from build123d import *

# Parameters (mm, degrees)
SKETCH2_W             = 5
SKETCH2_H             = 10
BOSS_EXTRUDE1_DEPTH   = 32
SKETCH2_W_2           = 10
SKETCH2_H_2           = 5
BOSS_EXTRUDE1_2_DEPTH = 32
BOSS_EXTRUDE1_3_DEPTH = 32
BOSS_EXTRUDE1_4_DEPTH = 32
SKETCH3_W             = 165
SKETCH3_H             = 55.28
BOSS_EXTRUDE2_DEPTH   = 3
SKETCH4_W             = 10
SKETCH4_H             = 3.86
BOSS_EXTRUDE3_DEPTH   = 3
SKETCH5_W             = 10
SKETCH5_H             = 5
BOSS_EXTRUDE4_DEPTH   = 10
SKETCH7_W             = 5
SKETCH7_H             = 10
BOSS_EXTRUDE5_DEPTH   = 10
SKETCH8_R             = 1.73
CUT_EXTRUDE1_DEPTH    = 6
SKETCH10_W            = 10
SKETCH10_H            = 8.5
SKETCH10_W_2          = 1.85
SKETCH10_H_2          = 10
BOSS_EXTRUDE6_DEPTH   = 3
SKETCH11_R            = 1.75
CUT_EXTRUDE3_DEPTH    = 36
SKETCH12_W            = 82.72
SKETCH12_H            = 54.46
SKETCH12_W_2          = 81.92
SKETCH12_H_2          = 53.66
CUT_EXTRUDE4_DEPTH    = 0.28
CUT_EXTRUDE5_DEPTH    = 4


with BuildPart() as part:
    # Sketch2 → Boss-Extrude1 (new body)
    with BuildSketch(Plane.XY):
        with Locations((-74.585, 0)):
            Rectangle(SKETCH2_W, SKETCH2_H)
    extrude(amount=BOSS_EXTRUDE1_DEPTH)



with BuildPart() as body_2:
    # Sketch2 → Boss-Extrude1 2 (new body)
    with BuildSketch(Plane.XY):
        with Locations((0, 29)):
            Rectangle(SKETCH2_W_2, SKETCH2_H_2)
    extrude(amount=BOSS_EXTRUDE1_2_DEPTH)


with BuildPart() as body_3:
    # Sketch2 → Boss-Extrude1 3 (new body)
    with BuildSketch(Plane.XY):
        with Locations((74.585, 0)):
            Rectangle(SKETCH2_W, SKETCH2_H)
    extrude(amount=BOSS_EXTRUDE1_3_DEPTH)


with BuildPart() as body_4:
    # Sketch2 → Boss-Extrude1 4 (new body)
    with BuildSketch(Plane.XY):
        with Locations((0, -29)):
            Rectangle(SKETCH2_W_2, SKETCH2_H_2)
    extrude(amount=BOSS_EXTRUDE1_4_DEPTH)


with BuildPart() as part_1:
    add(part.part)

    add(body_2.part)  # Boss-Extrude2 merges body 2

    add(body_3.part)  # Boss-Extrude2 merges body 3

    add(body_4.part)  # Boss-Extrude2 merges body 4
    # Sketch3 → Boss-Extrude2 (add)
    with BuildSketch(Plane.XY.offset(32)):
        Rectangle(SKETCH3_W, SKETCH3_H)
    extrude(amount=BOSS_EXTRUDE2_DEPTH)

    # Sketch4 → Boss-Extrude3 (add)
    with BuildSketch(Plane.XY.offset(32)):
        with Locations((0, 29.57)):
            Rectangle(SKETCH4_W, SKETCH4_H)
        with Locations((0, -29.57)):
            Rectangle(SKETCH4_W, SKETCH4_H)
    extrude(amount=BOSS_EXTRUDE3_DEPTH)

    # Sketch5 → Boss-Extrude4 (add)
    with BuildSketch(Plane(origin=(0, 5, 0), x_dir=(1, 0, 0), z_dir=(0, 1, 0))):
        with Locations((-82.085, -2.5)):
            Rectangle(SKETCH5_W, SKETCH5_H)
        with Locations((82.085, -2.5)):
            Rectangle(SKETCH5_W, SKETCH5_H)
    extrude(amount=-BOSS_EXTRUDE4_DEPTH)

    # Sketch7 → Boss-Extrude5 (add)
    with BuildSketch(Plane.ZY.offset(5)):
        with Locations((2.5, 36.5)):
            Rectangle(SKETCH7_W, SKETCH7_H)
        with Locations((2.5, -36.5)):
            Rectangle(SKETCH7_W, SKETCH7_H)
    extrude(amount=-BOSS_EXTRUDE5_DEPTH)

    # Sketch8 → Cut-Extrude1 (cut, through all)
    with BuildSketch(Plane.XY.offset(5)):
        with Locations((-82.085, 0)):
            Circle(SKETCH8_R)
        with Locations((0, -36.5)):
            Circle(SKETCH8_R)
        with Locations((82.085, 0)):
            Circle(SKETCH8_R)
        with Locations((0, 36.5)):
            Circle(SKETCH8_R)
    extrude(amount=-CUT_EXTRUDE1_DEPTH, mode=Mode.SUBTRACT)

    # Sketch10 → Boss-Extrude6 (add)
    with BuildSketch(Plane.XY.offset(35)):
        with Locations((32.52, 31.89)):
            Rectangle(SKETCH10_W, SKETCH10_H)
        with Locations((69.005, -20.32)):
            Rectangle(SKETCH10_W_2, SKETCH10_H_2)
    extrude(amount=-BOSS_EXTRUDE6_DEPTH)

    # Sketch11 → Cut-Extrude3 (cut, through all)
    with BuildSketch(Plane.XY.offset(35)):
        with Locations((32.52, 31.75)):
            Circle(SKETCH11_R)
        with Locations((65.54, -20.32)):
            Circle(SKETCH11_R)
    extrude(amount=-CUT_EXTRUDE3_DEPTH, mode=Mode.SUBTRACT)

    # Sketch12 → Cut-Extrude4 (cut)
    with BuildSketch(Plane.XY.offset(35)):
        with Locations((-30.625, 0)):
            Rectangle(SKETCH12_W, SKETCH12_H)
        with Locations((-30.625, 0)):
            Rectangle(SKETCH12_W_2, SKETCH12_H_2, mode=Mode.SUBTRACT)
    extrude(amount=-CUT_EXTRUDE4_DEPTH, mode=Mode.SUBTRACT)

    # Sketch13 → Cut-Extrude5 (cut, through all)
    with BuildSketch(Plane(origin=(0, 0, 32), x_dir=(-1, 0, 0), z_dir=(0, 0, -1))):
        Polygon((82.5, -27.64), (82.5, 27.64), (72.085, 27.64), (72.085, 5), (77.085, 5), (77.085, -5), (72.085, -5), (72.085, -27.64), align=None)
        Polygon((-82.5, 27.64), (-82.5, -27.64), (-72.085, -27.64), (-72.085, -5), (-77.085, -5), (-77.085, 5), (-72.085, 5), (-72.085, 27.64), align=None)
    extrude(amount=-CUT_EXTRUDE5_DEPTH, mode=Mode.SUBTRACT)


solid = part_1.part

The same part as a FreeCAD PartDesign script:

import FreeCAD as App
import Part
import Sketcher

V = App.Vector
Q = App.Units.Quantity


def add_polygon(sketch, points):
    """Adds a closed chain of lines whose ends are joined by coincident constraints."""
    first, n = sketch.GeometryCount, len(points)
    for a, b in zip(points, points[1:] + points[:1]):
        sketch.addGeometry(Part.LineSegment(App.Vector(*a, 0), App.Vector(*b, 0)), False)
    for i in range(n):
        sketch.addConstraint(Sketcher.Constraint("Coincident", first + i, 2, first + (i + 1) % n, 1))

doc = App.newDocument("Part")
body = doc.addObject("PartDesign::Body", "Body")

# Sketch on XY plane
sketch1 = body.newObject("Sketcher::SketchObject", "Sketch")
sketch1.AttachmentSupport = (doc.getObject("XY_Plane"), [""])
sketch1.MapMode = "FlatFace"
add_polygon(sketch1, [(-77, 5), (-77, -5), (-72, -5), (-72, 5)])  # lines 0-3
sketch1.addConstraint(Sketcher.Constraint("Vertical", 0))
sketch1.addConstraint(Sketcher.Constraint("Horizontal", 1))
sketch1.addConstraint(Sketcher.Constraint("Vertical", 2))
sketch1.addConstraint(Sketcher.Constraint("Horizontal", 3))
sketch1.addConstraint(Sketcher.Constraint("DistanceX", 1, 1, 1, 2, Q("5 mm")))
sketch1.addConstraint(Sketcher.Constraint("DistanceY", 0, 2, 0, 1, Q("10 mm")))
sketch1.addConstraint(Sketcher.Constraint("DistanceY", 0, 2, -1, 1, Q("5 mm")))
sketch1.addConstraint(Sketcher.Constraint("DistanceX", 0, 2, -1, 1, Q("77.085 mm")))
pad1 = body.newObject("PartDesign::Pad", "Pad")
pad1.Profile = sketch1
pad1.Length = 32
body2 = doc.addObject("PartDesign::Body", "Body001")

# Sketch on XY plane
sketch2 = body2.newObject("Sketcher::SketchObject", "Sketch001")
sketch2.AttachmentSupport = (doc.getObject("XY_Plane001"), [""])
sketch2.MapMode = "FlatFace"
add_polygon(sketch2, [(-5, 32), (-5, 26), (5, 26), (5, 32)])  # lines 0-3
sketch2.addConstraint(Sketcher.Constraint("Vertical", 0))
sketch2.addConstraint(Sketcher.Constraint("Horizontal", 1))
sketch2.addConstraint(Sketcher.Constraint("Vertical", 2))
sketch2.addConstraint(Sketcher.Constraint("Horizontal", 3))
sketch2.addConstraint(Sketcher.Constraint("DistanceX", 1, 1, 1, 2, Q("10 mm")))
sketch2.addConstraint(Sketcher.Constraint("DistanceY", 0, 2, 0, 1, Q("5 mm")))
sketch2.addConstraint(Sketcher.Constraint("DistanceX", 0, 2, -1, 1, Q("5 mm")))
sketch2.addConstraint(Sketcher.Constraint("DistanceY", -1, 1, 0, 2, Q("26.5 mm")))
pad2 = body2.newObject("PartDesign::Pad", "Pad001")
pad2.Profile = sketch2
pad2.Length = 32
body3 = doc.addObject("PartDesign::Body", "Body002")

# Sketch on XY plane
sketch3 = body3.newObject("Sketcher::SketchObject", "Sketch002")
sketch3.AttachmentSupport = (doc.getObject("XY_Plane002"), [""])
sketch3.MapMode = "FlatFace"
add_polygon(sketch3, [(72, 5), (72, -5), (77, -5), (77, 5)])  # lines 0-3
sketch3.addConstraint(Sketcher.Constraint("Vertical", 0))
sketch3.addConstraint(Sketcher.Constraint("Horizontal", 1))
sketch3.addConstraint(Sketcher.Constraint("Vertical", 2))
sketch3.addConstraint(Sketcher.Constraint("Horizontal", 3))
sketch3.addConstraint(Sketcher.Constraint("DistanceX", 1, 1, 1, 2, Q("5 mm")))
sketch3.addConstraint(Sketcher.Constraint("DistanceY", 0, 2, 0, 1, Q("10 mm")))
sketch3.addConstraint(Sketcher.Constraint("DistanceY", 0, 2, -1, 1, Q("5 mm")))
sketch3.addConstraint(Sketcher.Constraint("DistanceX", -1, 1, 0, 2, Q("72.085 mm")))
pad3 = body3.newObject("PartDesign::Pad", "Pad002")
pad3.Profile = sketch3
pad3.Length = 32
body4 = doc.addObject("PartDesign::Body", "Body003")

# Sketch on XY plane
sketch4 = body4.newObject("Sketcher::SketchObject", "Sketch003")
sketch4.AttachmentSupport = (doc.getObject("XY_Plane003"), [""])
sketch4.MapMode = "FlatFace"
add_polygon(sketch4, [(-5, -26), (-5, -32), (5, -32), (5, -26)])  # lines 0-3
sketch4.addConstraint(Sketcher.Constraint("Vertical", 0))
sketch4.addConstraint(Sketcher.Constraint("Horizontal", 1))
sketch4.addConstraint(Sketcher.Constraint("Vertical", 2))
sketch4.addConstraint(Sketcher.Constraint("Horizontal", 3))
sketch4.addConstraint(Sketcher.Constraint("DistanceX", 1, 1, 1, 2, Q("10 mm")))
sketch4.addConstraint(Sketcher.Constraint("DistanceY", 0, 2, 0, 1, Q("5 mm")))
sketch4.addConstraint(Sketcher.Constraint("DistanceX", 0, 2, -1, 1, Q("5 mm")))
sketch4.addConstraint(Sketcher.Constraint("DistanceY", 0, 2, -1, 1, Q("31.5 mm")))
pad4 = body4.newObject("PartDesign::Pad", "Pad003")
pad4.Profile = sketch4
pad4.Length = 32
body.AllowCompound = True
doc.recompute()

boolean = body.newObject("PartDesign::Boolean", "Boolean")
boolean.Type = "Fuse"
boolean.addObjects([body2])
doc.recompute()

boolean2 = body.newObject("PartDesign::Boolean", "Boolean001")
boolean2.Type = "Fuse"
boolean2.addObjects([body3])
doc.recompute()

boolean3 = body.newObject("PartDesign::Boolean", "Boolean002")
boolean3.Type = "Fuse"
boolean3.addObjects([body4])

# Sketch on XY plane
sketch5 = body.newObject("Sketcher::SketchObject", "Sketch004")
sketch5.AttachmentSupport = (doc.getObject("XY_Plane"), [""])
sketch5.MapMode = "FlatFace"
sketch5.AttachmentOffset = App.Placement(V(0, 0, 32), App.Rotation())
add_polygon(sketch5, [(-82, 28), (-82, -28), (82, -28), (82, 28)])  # lines 0-3
sketch5.addConstraint(Sketcher.Constraint("Vertical", 0))
sketch5.addConstraint(Sketcher.Constraint("Horizontal", 1))
sketch5.addConstraint(Sketcher.Constraint("Vertical", 2))
sketch5.addConstraint(Sketcher.Constraint("Horizontal", 3))
sketch5.addConstraint(Sketcher.Constraint("Symmetric", 0, 2, 2, 2, -1, 1))
sketch5.addConstraint(Sketcher.Constraint("DistanceX", 1, 1, 1, 2, Q("165 mm")))
sketch5.addConstraint(Sketcher.Constraint("DistanceY", 0, 2, 0, 1, Q("55.28 mm")))
pad5 = body.newObject("PartDesign::Pad", "Pad004")
pad5.Profile = sketch5
pad5.Length = 3

# Sketch on XY plane
sketch6 = body.newObject("Sketcher::SketchObject", "Sketch005")
sketch6.AttachmentSupport = (doc.getObject("XY_Plane"), [""])
sketch6.MapMode = "FlatFace"
sketch6.AttachmentOffset = App.Placement(V(0, 0, 32), App.Rotation())
add_polygon(sketch6, [(-5, 31.5), (-5, 27.6), (5, 27.6), (5, 31.5)])  # lines 0-3
add_polygon(sketch6, [(-5, -27.6), (-5, -31.5), (5, -31.5), (5, -27.6)])  # lines 4-7
sketch6.addConstraint(Sketcher.Constraint("Vertical", 0))
sketch6.addConstraint(Sketcher.Constraint("Horizontal", 1))
sketch6.addConstraint(Sketcher.Constraint("Vertical", 2))
sketch6.addConstraint(Sketcher.Constraint("Horizontal", 3))
sketch6.addConstraint(Sketcher.Constraint("Vertical", 4))
sketch6.addConstraint(Sketcher.Constraint("Horizontal", 5))
sketch6.addConstraint(Sketcher.Constraint("Vertical", 6))
sketch6.addConstraint(Sketcher.Constraint("Horizontal", 7))
sketch6.addConstraint(Sketcher.Constraint("Symmetric", 2, 2, 4, 2, -1, 1))
sketch6.addConstraint(Sketcher.Constraint("Symmetric", 0, 2, 6, 2, -1, 1))
sketch6.addConstraint(Sketcher.Constraint("Vertical", 3, 2, 4, 2))
sketch6.addConstraint(Sketcher.Constraint("DistanceX", 1, 1, 1, 2, Q("10 mm")))
sketch6.addConstraint(Sketcher.Constraint("DistanceY", 4, 2, 3, 2, Q("63 mm")))
sketch6.addConstraint(Sketcher.Constraint("DistanceY", 0, 2, 0, 1, Q("3.86 mm")))
pad6 = body.newObject("PartDesign::Pad", "Pad005")
pad6.Profile = sketch6
pad6.Length = 3

# Sketch on XZ plane
sketch7 = body.newObject("Sketcher::SketchObject", "Sketch006")
sketch7.AttachmentSupport = (doc.getObject("XZ_Plane"), [""])
sketch7.MapMode = "FlatFace"
sketch7.AttachmentOffset = App.Placement(V(0, 0, -5), App.Rotation())
add_polygon(sketch7, [(-87, 0), (-87, 5), (-77, 5), (-77, 0)])  # lines 0-3
add_polygon(sketch7, [(77, 0), (77, 5), (87, 5), (87, 0)])  # lines 4-7
sketch7.addConstraint(Sketcher.Constraint("Vertical", 0))
sketch7.addConstraint(Sketcher.Constraint("Horizontal", 1))
sketch7.addConstraint(Sketcher.Constraint("Vertical", 2))
sketch7.addConstraint(Sketcher.Constraint("Horizontal", 3))
sketch7.addConstraint(Sketcher.Constraint("Vertical", 4))
sketch7.addConstraint(Sketcher.Constraint("Horizontal", 5))
sketch7.addConstraint(Sketcher.Constraint("Vertical", 6))
sketch7.addConstraint(Sketcher.Constraint("Horizontal", 7))
sketch7.addConstraint(Sketcher.Constraint("Symmetric", 3, 2, 6, 2, -1, 1))
sketch7.addConstraint(Sketcher.Constraint("Symmetric", 1, 2, 4, 2, -2))
sketch7.addConstraint(Sketcher.Constraint("PointOnObject", 2, 2, -1))
sketch7.addConstraint(Sketcher.Constraint("DistanceX", 1, 1, 1, 2, Q("10 mm")))
sketch7.addConstraint(Sketcher.Constraint("DistanceY", 0, 1, 0, 2, Q("5 mm")))
sketch7.addConstraint(Sketcher.Constraint("DistanceX", 1, 2, 4, 2, Q("154.17 mm")))
pad7 = body.newObject("PartDesign::Pad", "Pad006")
pad7.Profile = sketch7
pad7.Length = 10

# Sketch on YZ plane
sketch8 = body.newObject("Sketcher::SketchObject", "Sketch007")
sketch8.AttachmentSupport = (doc.getObject("YZ_Plane"), [""])
sketch8.MapMode = "FlatFace"
sketch8.AttachmentOffset = App.Placement(V(0, 0, -5), App.Rotation())
add_polygon(sketch8, [(42, 0), (32, 0), (32, 5), (42, 5)])  # lines 0-3
add_polygon(sketch8, [(-32, 0), (-42, 0), (-42, 5), (-32, 5)])  # lines 4-7
sketch8.addConstraint(Sketcher.Constraint("Horizontal", 0))
sketch8.addConstraint(Sketcher.Constraint("Vertical", 1))
sketch8.addConstraint(Sketcher.Constraint("Horizontal", 2))
sketch8.addConstraint(Sketcher.Constraint("Vertical", 3))
sketch8.addConstraint(Sketcher.Constraint("Horizontal", 4))
sketch8.addConstraint(Sketcher.Constraint("Vertical", 5))
sketch8.addConstraint(Sketcher.Constraint("Horizontal", 6))
sketch8.addConstraint(Sketcher.Constraint("Vertical", 7))
sketch8.addConstraint(Sketcher.Constraint("Symmetric", 3, 2, 4, 2, -1, 1))
sketch8.addConstraint(Sketcher.Constraint("Symmetric", 1, 2, 6, 2, -2))
sketch8.addConstraint(Sketcher.Constraint("PointOnObject", 0, 2, -1))
sketch8.addConstraint(Sketcher.Constraint("DistanceX", 0, 2, 0, 1, Q("10 mm")))
sketch8.addConstraint(Sketcher.Constraint("DistanceY", 1, 1, 1, 2, Q("5 mm")))
sketch8.addConstraint(Sketcher.Constraint("DistanceX", 4, 2, 0, 2, Q("73 mm")))
pad8 = body.newObject("PartDesign::Pad", "Pad007")
pad8.Profile = sketch8
pad8.Length = 10

# Sketch on XY plane
sketch9 = body.newObject("Sketcher::SketchObject", "Sketch008")
sketch9.AttachmentSupport = (doc.getObject("XY_Plane"), [""])
sketch9.MapMode = "FlatFace"
sketch9.AttachmentOffset = App.Placement(V(0, 0, 5), App.Rotation())
sketch9.addGeometry(Part.Circle(V(-82.1, 0, 0), V(0, 0, 1), 1.7), False)
sketch9.addGeometry(Part.Circle(V(0, -36.5, 0), V(0, 0, 1), 1.7), False)
sketch9.addGeometry(Part.Circle(V(82.1, 0, 0), V(0, 0, 1), 1.7), False)
sketch9.addGeometry(Part.Circle(V(0, 36.5, 0), V(0, 0, 1), 1.7), False)
sketch9.addConstraint(Sketcher.Constraint("Equal", 0, 1))
sketch9.addConstraint(Sketcher.Constraint("Equal", 1, 2))
sketch9.addConstraint(Sketcher.Constraint("Equal", 2, 3))
sketch9.addConstraint(Sketcher.Constraint("Symmetric", 0, 3, 2, 3, -1, 1))
sketch9.addConstraint(Sketcher.Constraint("Symmetric", 1, 3, 3, 3, -1, 1))
sketch9.addConstraint(Sketcher.Constraint("PointOnObject", 0, 3, -1))
sketch9.addConstraint(Sketcher.Constraint("PointOnObject", 1, 3, -2))
sketch9.addConstraint(Sketcher.Constraint("Diameter", 0, Q("3.46 mm")))
sketch9.addConstraint(Sketcher.Constraint("DistanceY", 1, 3, 3, 3, Q("73 mm")))
sketch9.addConstraint(Sketcher.Constraint("DistanceX", 0, 3, 2, 3, Q("164.17 mm")))
pocket1 = body.newObject("PartDesign::Pocket", "Pocket")
pocket1.Profile = sketch9
pocket1.Type = "ThroughAll"

# Sketch on XY plane
sketch10 = body.newObject("Sketcher::SketchObject", "Sketch009")
sketch10.AttachmentSupport = (doc.getObject("XY_Plane"), [""])
sketch10.MapMode = "FlatFace"
sketch10.AttachmentOffset = App.Placement(V(0, 0, 35), App.Rotation())
add_polygon(sketch10, [(27.5, 36.1), (27.5, 27.6), (37.5, 27.6), (37.5, 36.1)])  # lines 0-3
add_polygon(sketch10, [(68.1, -15.3), (68.1, -25.3), (69.9, -25.3), (69.9, -15.3)])  # lines 4-7
sketch10.addConstraint(Sketcher.Constraint("Vertical", 0))
sketch10.addConstraint(Sketcher.Constraint("Horizontal", 1))
sketch10.addConstraint(Sketcher.Constraint("Vertical", 2))
sketch10.addConstraint(Sketcher.Constraint("Horizontal", 3))
sketch10.addConstraint(Sketcher.Constraint("Vertical", 4))
sketch10.addConstraint(Sketcher.Constraint("Horizontal", 5))
sketch10.addConstraint(Sketcher.Constraint("Vertical", 6))
sketch10.addConstraint(Sketcher.Constraint("Horizontal", 7))
sketch10.addConstraint(Sketcher.Constraint("Equal", 3, 4))
sketch10.addConstraint(Sketcher.Constraint("DistanceX", 1, 1, 1, 2, Q("10 mm")))
sketch10.addConstraint(Sketcher.Constraint("DistanceY", 0, 2, 0, 1, Q("8.5 mm")))
sketch10.addConstraint(Sketcher.Constraint("DistanceX", 5, 1, 5, 2, Q("1.85 mm")))
sketch10.addConstraint(Sketcher.Constraint("DistanceX", -1, 1, 0, 2, Q("27.52 mm")))
sketch10.addConstraint(Sketcher.Constraint("DistanceY", -1, 1, 0, 2, Q("27.64 mm")))
sketch10.addConstraint(Sketcher.Constraint("DistanceX", -1, 1, 4, 2, Q("68.08 mm")))
sketch10.addConstraint(Sketcher.Constraint("DistanceY", 4, 2, -1, 1, Q("25.32 mm")))
pad9 = body.newObject("PartDesign::Pad", "Pad008")
pad9.Profile = sketch10
pad9.Length = 3
pad9.Reversed = True

# Sketch on XY plane
sketch11 = body.newObject("Sketcher::SketchObject", "Sketch010")
sketch11.AttachmentSupport = (doc.getObject("XY_Plane"), [""])
sketch11.MapMode = "FlatFace"
sketch11.AttachmentOffset = App.Placement(V(0, 0, 35), App.Rotation())
sketch11.addGeometry(Part.Circle(V(32.5, 31.8, 0), V(0, 0, 1), 1.8), False)
sketch11.addGeometry(Part.Circle(V(65.5, -20.3, 0), V(0, 0, 1), 1.8), False)
sketch11.addConstraint(Sketcher.Constraint("Equal", 0, 1))
sketch11.addConstraint(Sketcher.Constraint("Diameter", 0, Q("3.5 mm")))
sketch11.addConstraint(Sketcher.Constraint("DistanceX", -1, 1, 0, 3, Q("32.52 mm")))
sketch11.addConstraint(Sketcher.Constraint("DistanceY", -1, 1, 0, 3, Q("31.75 mm")))
sketch11.addConstraint(Sketcher.Constraint("DistanceX", -1, 1, 1, 3, Q("65.54 mm")))
sketch11.addConstraint(Sketcher.Constraint("DistanceY", 1, 3, -1, 1, Q("20.32 mm")))
pocket2 = body.newObject("PartDesign::Pocket", "Pocket001")
pocket2.Profile = sketch11
pocket2.Type = "ThroughAll"

# Sketch on XY plane
sketch12 = body.newObject("Sketcher::SketchObject", "Sketch011")
sketch12.AttachmentSupport = (doc.getObject("XY_Plane"), [""])
sketch12.MapMode = "FlatFace"
sketch12.AttachmentOffset = App.Placement(V(0, 0, 35), App.Rotation())
add_polygon(sketch12, [(-72, 27), (-72, -27), (11, -27), (11, 27)])  # lines 0-3
add_polygon(sketch12, [(10, -27), (-72, -27), (-72, 27), (10, 27)])  # lines 4-7
sketch12.addConstraint(Sketcher.Constraint("Vertical", 0))
sketch12.addConstraint(Sketcher.Constraint("Horizontal", 1))
sketch12.addConstraint(Sketcher.Constraint("Vertical", 2))
sketch12.addConstraint(Sketcher.Constraint("Horizontal", 3))
sketch12.addConstraint(Sketcher.Constraint("Horizontal", 4))
sketch12.addConstraint(Sketcher.Constraint("Vertical", 5))
sketch12.addConstraint(Sketcher.Constraint("Horizontal", 6))
sketch12.addConstraint(Sketcher.Constraint("Vertical", 7))
sketch12.addConstraint(Sketcher.Constraint("DistanceX", 1, 1, 1, 2, Q("82.72 mm")))
sketch12.addConstraint(Sketcher.Constraint("DistanceX", 4, 2, 4, 1, Q("81.92 mm")))
sketch12.addConstraint(Sketcher.Constraint("DistanceY", 0, 2, 0, 1, Q("54.46 mm")))
sketch12.addConstraint(Sketcher.Constraint("DistanceY", 5, 1, 5, 2, Q("53.66 mm")))
sketch12.addConstraint(Sketcher.Constraint("DistanceX", 0, 2, 4, 2, Q("0.4 mm")))
sketch12.addConstraint(Sketcher.Constraint("DistanceY", 0, 2, 4, 2, Q("0.4 mm")))
sketch12.addConstraint(Sketcher.Constraint("DistanceY", 0, 2, -1, 1, Q("27.23 mm")))
sketch12.addConstraint(Sketcher.Constraint("DistanceX", 0, 2, -1, 1, Q("71.985 mm")))
pocket3 = body.newObject("PartDesign::Pocket", "Pocket002")
pocket3.Profile = sketch12
pocket3.Length = 0.28

# Sketch on XY plane
sketch13 = body.newObject("Sketcher::SketchObject", "Sketch012")
sketch13.AttachmentSupport = (doc.getObject("XY_Plane"), [""])
sketch13.MapMode = "FlatFace"
sketch13.AttachmentOffset = App.Placement(V(0, 0, 32), App.Rotation())
add_polygon(sketch13, [(-82, -28), (-82, 28), (-72, 28), (-72, 5), (-77, 5), (-77, -5), (-72, -5), (-72, -28)])  # lines 0-7
add_polygon(sketch13, [(82, 28), (82, -28), (72, -28), (72, -5), (77, -5), (77, 5), (72, 5), (72, 28)])  # lines 8-15
sketch13.addConstraint(Sketcher.Constraint("Vertical", 0))
sketch13.addConstraint(Sketcher.Constraint("Horizontal", 1))
sketch13.addConstraint(Sketcher.Constraint("Vertical", 2))
sketch13.addConstraint(Sketcher.Constraint("Horizontal", 3))
sketch13.addConstraint(Sketcher.Constraint("Vertical", 4))
sketch13.addConstraint(Sketcher.Constraint("Horizontal", 5))
sketch13.addConstraint(Sketcher.Constraint("Vertical", 6))
sketch13.addConstraint(Sketcher.Constraint("Horizontal", 7))
sketch13.addConstraint(Sketcher.Constraint("Vertical", 8))
sketch13.addConstraint(Sketcher.Constraint("Horizontal", 9))
sketch13.addConstraint(Sketcher.Constraint("Vertical", 10))
sketch13.addConstraint(Sketcher.Constraint("Horizontal", 11))
sketch13.addConstraint(Sketcher.Constraint("Vertical", 12))
sketch13.addConstraint(Sketcher.Constraint("Horizontal", 13))
sketch13.addConstraint(Sketcher.Constraint("Vertical", 14))
sketch13.addConstraint(Sketcher.Constraint("Horizontal", 15))
sketch13.addConstraint(Sketcher.Constraint("Symmetric", 0, 2, 8, 2, -1, 1))
sketch13.addConstraint(Sketcher.Constraint("Symmetric", 2, 2, 10, 2, -1, 1))
sketch13.addConstraint(Sketcher.Constraint("Symmetric", 4, 2, 12, 2, -1, 1))
sketch13.addConstraint(Sketcher.Constraint("Symmetric", 6, 2, 14, 2, -1, 1))
sketch13.addConstraint(Sketcher.Constraint("Symmetric", 6, 2, 9, 2, -2))
sketch13.addConstraint(Sketcher.Constraint("Horizontal", 5, 2, 10, 2))
sketch13.addConstraint(Sketcher.Constraint("DistanceX", 3, 2, 3, 1, Q("5 mm")))
sketch13.addConstraint(Sketcher.Constraint("DistanceY", 4, 2, 4, 1, Q("10 mm")))
sketch13.addConstraint(Sketcher.Constraint("DistanceY", 0, 1, 0, 2, Q("55.28 mm")))
sketch13.addConstraint(Sketcher.Constraint("DistanceX", 0, 2, -1, 1, Q("82.5 mm")))
sketch13.addConstraint(Sketcher.Constraint("DistanceX", 1, 1, 1, 2, Q("10.415 mm")))
pocket4 = body.newObject("PartDesign::Pocket", "Pocket003")
pocket4.Profile = sketch13
pocket4.Type = "ThroughAll"
pocket4.Reversed = True

doc.recompute()
